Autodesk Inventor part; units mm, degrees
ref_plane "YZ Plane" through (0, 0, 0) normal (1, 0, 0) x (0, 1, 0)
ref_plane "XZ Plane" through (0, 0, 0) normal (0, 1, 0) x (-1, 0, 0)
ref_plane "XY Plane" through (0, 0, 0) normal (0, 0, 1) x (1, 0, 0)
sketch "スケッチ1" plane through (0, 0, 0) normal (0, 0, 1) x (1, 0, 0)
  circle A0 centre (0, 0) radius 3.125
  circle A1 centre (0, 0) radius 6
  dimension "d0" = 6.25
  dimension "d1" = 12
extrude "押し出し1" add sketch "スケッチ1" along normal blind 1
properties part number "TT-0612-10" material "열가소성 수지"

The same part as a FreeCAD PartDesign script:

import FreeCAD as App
import Part
import Sketcher

V = App.Vector
Q = App.Units.Quantity

doc = App.newDocument("Part")
body = doc.addObject("PartDesign::Body", "Body")

# Sketch on XY plane
sketch1 = body.newObject("Sketcher::SketchObject", "Sketch")
sketch1.AttachmentSupport = (doc.getObject("XY_Plane"), [""])
sketch1.MapMode = "FlatFace"
sketch1.addGeometry(Part.Circle(V(0, 0, 0), V(0, 0, 1), 6), False)
sketch1.addGeometry(Part.Circle(V(0, 0, 0), V(0, 0, 1), 3.1), False)
sketch1.addConstraint(Sketcher.Constraint("Coincident", 0, 3, -1, 1))
sketch1.addConstraint(Sketcher.Constraint("Coincident", 1, 3, -1, 1))
sketch1.addConstraint(Sketcher.Constraint("Diameter", 0, Q("12 mm")))
sketch1.addConstraint(Sketcher.Constraint("Diameter", 1, Q("6.25 mm")))
pad1 = body.newObject("PartDesign::Pad", "Pad")
pad1.Profile = sketch1
pad1.Length = 1

doc.recompute()
